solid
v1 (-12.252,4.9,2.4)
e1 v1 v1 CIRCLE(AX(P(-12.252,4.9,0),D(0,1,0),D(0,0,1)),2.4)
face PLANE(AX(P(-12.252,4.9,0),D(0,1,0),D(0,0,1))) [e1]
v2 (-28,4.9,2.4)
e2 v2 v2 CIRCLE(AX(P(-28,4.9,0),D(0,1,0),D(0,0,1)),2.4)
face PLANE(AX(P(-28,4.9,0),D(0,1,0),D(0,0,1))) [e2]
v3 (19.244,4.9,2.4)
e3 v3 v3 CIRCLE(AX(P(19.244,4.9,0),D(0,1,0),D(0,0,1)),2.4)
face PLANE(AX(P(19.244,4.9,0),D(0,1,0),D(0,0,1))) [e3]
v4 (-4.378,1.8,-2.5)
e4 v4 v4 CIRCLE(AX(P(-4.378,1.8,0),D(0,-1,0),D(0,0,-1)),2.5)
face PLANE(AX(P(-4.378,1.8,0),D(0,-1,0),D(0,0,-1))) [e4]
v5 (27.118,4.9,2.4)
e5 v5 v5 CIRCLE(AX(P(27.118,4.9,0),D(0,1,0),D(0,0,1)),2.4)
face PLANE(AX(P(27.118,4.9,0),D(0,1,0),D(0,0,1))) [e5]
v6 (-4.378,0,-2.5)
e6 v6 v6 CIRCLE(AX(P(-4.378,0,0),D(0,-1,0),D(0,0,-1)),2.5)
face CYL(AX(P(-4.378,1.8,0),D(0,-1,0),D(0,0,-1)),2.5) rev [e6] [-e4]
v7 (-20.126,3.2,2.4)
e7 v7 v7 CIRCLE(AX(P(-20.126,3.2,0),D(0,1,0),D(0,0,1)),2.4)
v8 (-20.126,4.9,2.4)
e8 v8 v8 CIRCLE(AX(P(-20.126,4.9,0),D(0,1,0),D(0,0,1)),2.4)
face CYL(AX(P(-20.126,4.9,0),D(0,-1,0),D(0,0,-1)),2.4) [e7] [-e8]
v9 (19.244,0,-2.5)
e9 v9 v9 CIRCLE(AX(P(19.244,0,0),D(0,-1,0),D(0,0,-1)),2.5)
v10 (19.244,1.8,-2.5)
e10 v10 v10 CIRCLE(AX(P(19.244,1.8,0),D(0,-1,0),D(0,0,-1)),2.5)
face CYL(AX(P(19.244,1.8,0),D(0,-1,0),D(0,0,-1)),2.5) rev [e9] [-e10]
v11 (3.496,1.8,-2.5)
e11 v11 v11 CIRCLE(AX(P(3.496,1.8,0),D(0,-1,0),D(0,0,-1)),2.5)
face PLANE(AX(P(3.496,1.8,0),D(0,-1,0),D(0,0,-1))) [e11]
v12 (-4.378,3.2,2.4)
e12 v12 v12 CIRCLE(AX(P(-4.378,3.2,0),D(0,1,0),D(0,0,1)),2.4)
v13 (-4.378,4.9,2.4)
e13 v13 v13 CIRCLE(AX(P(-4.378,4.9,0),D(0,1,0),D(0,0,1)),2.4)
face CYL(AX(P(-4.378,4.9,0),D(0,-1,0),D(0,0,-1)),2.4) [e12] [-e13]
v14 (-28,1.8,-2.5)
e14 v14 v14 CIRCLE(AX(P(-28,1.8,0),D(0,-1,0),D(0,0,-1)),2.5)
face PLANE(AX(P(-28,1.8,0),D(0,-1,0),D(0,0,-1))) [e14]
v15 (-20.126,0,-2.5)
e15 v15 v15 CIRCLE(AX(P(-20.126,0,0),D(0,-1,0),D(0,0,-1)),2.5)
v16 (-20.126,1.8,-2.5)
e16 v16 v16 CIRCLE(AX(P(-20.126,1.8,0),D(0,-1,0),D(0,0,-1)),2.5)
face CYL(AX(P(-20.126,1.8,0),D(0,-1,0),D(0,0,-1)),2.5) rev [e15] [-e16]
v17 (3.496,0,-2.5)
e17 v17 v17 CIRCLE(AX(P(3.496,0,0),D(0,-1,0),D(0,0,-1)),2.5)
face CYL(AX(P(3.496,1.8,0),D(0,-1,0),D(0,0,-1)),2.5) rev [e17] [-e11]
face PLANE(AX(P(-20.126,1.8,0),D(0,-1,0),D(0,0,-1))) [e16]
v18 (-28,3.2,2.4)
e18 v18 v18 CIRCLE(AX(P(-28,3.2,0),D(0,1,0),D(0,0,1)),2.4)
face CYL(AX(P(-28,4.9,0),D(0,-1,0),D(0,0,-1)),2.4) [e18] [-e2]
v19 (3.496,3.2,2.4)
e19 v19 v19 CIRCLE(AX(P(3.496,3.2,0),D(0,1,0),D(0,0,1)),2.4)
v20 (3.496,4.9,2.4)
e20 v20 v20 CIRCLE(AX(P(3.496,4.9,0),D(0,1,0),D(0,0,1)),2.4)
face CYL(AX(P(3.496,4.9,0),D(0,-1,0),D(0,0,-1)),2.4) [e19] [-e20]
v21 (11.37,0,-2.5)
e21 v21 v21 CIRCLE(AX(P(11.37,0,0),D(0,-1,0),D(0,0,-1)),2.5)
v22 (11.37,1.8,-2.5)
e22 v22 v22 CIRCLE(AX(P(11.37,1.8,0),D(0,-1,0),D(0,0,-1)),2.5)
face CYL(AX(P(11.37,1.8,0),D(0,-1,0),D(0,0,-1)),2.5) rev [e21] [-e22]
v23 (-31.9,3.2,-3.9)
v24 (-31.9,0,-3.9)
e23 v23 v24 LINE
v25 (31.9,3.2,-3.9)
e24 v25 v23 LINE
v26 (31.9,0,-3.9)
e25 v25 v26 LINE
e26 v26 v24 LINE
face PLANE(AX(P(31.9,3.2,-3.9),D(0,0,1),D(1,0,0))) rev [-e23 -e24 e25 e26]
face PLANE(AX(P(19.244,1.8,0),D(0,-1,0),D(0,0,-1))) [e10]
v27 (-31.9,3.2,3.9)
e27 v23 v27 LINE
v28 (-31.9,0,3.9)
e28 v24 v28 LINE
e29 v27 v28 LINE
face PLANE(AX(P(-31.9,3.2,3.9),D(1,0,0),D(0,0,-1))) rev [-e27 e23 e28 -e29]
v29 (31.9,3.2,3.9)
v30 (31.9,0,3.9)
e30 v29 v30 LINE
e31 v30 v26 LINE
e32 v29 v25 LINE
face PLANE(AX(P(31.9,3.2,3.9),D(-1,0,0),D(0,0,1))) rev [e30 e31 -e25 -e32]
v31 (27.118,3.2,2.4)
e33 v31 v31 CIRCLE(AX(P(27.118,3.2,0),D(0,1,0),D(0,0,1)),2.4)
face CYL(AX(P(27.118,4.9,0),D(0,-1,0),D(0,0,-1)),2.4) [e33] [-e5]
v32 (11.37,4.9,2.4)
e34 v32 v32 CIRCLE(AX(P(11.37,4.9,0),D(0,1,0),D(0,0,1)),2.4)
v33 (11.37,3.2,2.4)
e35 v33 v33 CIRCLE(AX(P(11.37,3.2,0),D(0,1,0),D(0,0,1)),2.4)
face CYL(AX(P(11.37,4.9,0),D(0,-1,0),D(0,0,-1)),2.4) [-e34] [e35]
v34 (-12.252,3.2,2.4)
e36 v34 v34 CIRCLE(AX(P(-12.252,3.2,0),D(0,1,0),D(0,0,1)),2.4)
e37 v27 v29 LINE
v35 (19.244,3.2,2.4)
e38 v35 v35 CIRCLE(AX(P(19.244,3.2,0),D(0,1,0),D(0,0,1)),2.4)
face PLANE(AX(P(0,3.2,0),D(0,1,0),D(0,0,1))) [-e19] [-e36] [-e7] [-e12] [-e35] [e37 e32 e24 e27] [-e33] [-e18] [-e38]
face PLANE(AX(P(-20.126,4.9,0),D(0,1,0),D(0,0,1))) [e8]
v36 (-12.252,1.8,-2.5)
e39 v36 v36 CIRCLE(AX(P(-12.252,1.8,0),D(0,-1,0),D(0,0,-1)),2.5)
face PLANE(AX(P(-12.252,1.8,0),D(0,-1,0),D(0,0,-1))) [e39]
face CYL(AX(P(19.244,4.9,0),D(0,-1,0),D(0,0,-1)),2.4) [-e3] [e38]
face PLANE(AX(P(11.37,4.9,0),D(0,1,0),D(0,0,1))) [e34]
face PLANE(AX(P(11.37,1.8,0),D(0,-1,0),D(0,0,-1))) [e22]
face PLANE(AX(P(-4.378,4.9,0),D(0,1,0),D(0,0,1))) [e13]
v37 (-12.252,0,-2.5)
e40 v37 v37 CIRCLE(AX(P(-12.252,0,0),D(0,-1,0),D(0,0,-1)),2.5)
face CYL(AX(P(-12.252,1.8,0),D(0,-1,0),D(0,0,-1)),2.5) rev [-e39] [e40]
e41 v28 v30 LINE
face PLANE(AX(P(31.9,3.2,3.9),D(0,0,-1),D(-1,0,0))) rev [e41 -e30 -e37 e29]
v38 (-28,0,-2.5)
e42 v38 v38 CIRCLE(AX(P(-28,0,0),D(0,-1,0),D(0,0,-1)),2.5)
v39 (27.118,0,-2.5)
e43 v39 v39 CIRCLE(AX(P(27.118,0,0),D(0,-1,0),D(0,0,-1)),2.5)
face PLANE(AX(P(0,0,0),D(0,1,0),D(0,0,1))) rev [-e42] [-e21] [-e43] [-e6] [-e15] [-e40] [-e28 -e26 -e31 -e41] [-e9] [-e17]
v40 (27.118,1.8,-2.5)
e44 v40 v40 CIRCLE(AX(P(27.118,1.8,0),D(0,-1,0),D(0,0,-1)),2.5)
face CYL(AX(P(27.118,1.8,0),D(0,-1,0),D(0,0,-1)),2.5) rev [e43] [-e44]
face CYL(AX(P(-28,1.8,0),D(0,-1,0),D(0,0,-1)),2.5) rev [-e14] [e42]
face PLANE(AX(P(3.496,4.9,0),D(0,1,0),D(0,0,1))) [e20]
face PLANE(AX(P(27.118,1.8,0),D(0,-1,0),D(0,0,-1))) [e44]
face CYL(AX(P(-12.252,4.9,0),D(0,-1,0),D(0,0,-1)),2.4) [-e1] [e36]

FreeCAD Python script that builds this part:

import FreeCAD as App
import Part
import Sketcher

V = App.Vector


def add_polygon(sketch, points):
    """Adds a closed chain of lines whose ends are joined by coincident constraints."""
    first, n = sketch.GeometryCount, len(points)
    for a, b in zip(points, points[1:] + points[:1]):
        sketch.addGeometry(Part.LineSegment(App.Vector(*a, 0), App.Vector(*b, 0)), False)
    for i in range(n):
        sketch.addConstraint(Sketcher.Constraint("Coincident", first + i, 2, first + (i + 1) % n, 1))

doc = App.newDocument("Part")
body = doc.addObject("PartDesign::Body", "Body")

sketch1 = body.newObject("Sketcher::SketchObject", "Sketch")
sketch1.AttachmentSupport = (doc.getObject("XZ_Plane"), [""])
sketch1.MapMode = "FlatFace"
add_polygon(sketch1, [(-32, -4), (-32, 4), (32, 4), (32, -4)])
sketch1.addConstraint([
    Sketcher.Constraint("Vertical", 0),
    Sketcher.Constraint("Horizontal", 1),
    Sketcher.Constraint("Vertical", 2),
    Sketcher.Constraint("Horizontal", 3),
    Sketcher.Constraint("Symmetric", 0, 2, 2, 2, -1, 1),
    Sketcher.Constraint("DistanceX", 1, 1, 1, 2, 63.8),
    Sketcher.Constraint("DistanceY", 0, 1, 0, 2, 7.8),
])
pad1 = body.newObject("PartDesign::Pad", "Pad")
pad1.Profile = sketch1
pad1.Length = 3.2
pad1.Reversed = True

sketch2 = body.newObject("Sketcher::SketchObject", "Sketch001")
sketch2.AttachmentSupport = (doc.getObject("XZ_Plane"), [""])
sketch2.MapMode = "FlatFace"
sketch2.AttachmentOffset = App.Placement(V(0, 0, -3.2), App.Rotation())
sketch2.addGeometry([
    Part.Circle(V(-28, 0, 0), V(0, 0, 1), 2.4),
    Part.Circle(V(-20.1, 0, 0), V(0, 0, 1), 2.4),
    Part.Circle(V(-12.3, 0, 0), V(0, 0, 1), 2.4),
    Part.Circle(V(-4.4, 0, 0), V(0, 0, 1), 2.4),
    Part.Circle(V(3.5, 0, 0), V(0, 0, 1), 2.4),
    Part.Circle(V(11.4, 0, 0), V(0, 0, 1), 2.4),
    Part.Circle(V(19.2, 0, 0), V(0, 0, 1), 2.4),
    Part.Circle(V(27.1, 0, 0), V(0, 0, 1), 2.4),
], False)
sketch2.addConstraint([
    Sketcher.Constraint("Equal", 0, 1),
    Sketcher.Constraint("Equal", 1, 2),
    Sketcher.Constraint("Equal", 2, 3),
    Sketcher.Constraint("Equal", 3, 4),
    Sketcher.Constraint("Equal", 4, 5),
    Sketcher.Constraint("Equal", 5, 6),
    Sketcher.Constraint("Equal", 6, 7),
    Sketcher.Constraint("PointOnObject", 0, 3, -1),
    Sketcher.Constraint("PointOnObject", 1, 3, -1),
    Sketcher.Constraint("PointOnObject", 2, 3, -1),
    Sketcher.Constraint("PointOnObject", 3, 3, -1),
    Sketcher.Constraint("PointOnObject", 4, 3, -1),
    Sketcher.Constraint("PointOnObject", 5, 3, -1),
    Sketcher.Constraint("PointOnObject", 6, 3, -1),
    Sketcher.Constraint("PointOnObject", 7, 3, -1),
    Sketcher.Constraint("Diameter", 0, 4.8),
    Sketcher.Constraint("DistanceX", 0, 3, -1, 1, 28.0),
    Sketcher.Constraint("DistanceX", -1, 1, 5, 3, 11.37),
    Sketcher.Constraint("DistanceX", 1, 3, 6, 3, 39.37),
    Sketcher.Constraint("DistanceX", 2, 3, 7, 3, 39.37),
    Sketcher.Constraint("DistanceX", 1, 3, -1, 1, 20.126),
    Sketcher.Constraint("DistanceX", 2, 3, -1, 1, 12.252),
    Sketcher.Constraint("DistanceX", 3, 3, -1, 1, 4.378),
    Sketcher.Constraint("DistanceX", -1, 1, 4, 3, 3.496),
])
pad2 = body.newObject("PartDesign::Pad", "Pad001")
pad2.Profile = sketch2
pad2.Length = 1.7
pad2.Reversed = True

sketch3 = body.newObject("Sketcher::SketchObject", "Sketch002")
sketch3.AttachmentSupport = (doc.getObject("XZ_Plane"), [""])
sketch3.MapMode = "FlatFace"
sketch3.addGeometry([
    Part.Circle(V(-28, 0, 0), V(0, 0, 1), 2.5),
    Part.Circle(V(-20.1, 0, 0), V(0, 0, 1), 2.5),
    Part.Circle(V(-12.3, 0, 0), V(0, 0, 1), 2.5),
    Part.Circle(V(-4.4, 0, 0), V(0, 0, 1), 2.5),
    Part.Circle(V(3.5, 0, 0), V(0, 0, 1), 2.5),
    Part.Circle(V(11.4, 0, 0), V(0, 0, 1), 2.5),
    Part.Circle(V(19.2, 0, 0), V(0, 0, 1), 2.5),
    Part.Circle(V(27.1, 0, 0), V(0, 0, 1), 2.5),
], False)
sketch3.addConstraint([
    Sketcher.Constraint("Equal", 0, 1),
    Sketcher.Constraint("Equal", 1, 2),
    Sketcher.Constraint("Equal", 2, 3),
    Sketcher.Constraint("Equal", 3, 4),
    Sketcher.Constraint("Equal", 4, 5),
    Sketcher.Constraint("Equal", 5, 6),
    Sketcher.Constraint("Equal", 6, 7),
    Sketcher.Constraint("PointOnObject", 0, 3, -1),
    Sketcher.Constraint("PointOnObject", 1, 3, -1),
    Sketcher.Constraint("PointOnObject", 2, 3, -1),
    Sketcher.Constraint("PointOnObject", 3, 3, -1),
    Sketcher.Constraint("PointOnObject", 4, 3, -1),
    Sketcher.Constraint("PointOnObject", 5, 3, -1),
    Sketcher.Constraint("PointOnObject", 6, 3, -1),
    Sketcher.Constraint("PointOnObject", 7, 3, -1),
    Sketcher.Constraint("Diameter", 0, 5.0),
    Sketcher.Constraint("DistanceX", 0, 3, -1, 1, 28.0),
    Sketcher.Constraint("DistanceX", -1, 1, 5, 3, 11.37),
    Sketcher.Constraint("DistanceX", 1, 3, 6, 3, 39.37),
    Sketcher.Constraint("DistanceX", 2, 3, 7, 3, 39.37),
    Sketcher.Constraint("DistanceX", 1, 3, -1, 1, 20.126),
    Sketcher.Constraint("DistanceX", 2, 3, -1, 1, 12.252),
    Sketcher.Constraint("DistanceX", 3, 3, -1, 1, 4.378),
    Sketcher.Constraint("DistanceX", -1, 1, 4, 3, 3.496),
])
pocket1 = body.newObject("PartDesign::Pocket", "Pocket")
pocket1.Profile = sketch3
pocket1.Length = 1.8

doc.recompute()
